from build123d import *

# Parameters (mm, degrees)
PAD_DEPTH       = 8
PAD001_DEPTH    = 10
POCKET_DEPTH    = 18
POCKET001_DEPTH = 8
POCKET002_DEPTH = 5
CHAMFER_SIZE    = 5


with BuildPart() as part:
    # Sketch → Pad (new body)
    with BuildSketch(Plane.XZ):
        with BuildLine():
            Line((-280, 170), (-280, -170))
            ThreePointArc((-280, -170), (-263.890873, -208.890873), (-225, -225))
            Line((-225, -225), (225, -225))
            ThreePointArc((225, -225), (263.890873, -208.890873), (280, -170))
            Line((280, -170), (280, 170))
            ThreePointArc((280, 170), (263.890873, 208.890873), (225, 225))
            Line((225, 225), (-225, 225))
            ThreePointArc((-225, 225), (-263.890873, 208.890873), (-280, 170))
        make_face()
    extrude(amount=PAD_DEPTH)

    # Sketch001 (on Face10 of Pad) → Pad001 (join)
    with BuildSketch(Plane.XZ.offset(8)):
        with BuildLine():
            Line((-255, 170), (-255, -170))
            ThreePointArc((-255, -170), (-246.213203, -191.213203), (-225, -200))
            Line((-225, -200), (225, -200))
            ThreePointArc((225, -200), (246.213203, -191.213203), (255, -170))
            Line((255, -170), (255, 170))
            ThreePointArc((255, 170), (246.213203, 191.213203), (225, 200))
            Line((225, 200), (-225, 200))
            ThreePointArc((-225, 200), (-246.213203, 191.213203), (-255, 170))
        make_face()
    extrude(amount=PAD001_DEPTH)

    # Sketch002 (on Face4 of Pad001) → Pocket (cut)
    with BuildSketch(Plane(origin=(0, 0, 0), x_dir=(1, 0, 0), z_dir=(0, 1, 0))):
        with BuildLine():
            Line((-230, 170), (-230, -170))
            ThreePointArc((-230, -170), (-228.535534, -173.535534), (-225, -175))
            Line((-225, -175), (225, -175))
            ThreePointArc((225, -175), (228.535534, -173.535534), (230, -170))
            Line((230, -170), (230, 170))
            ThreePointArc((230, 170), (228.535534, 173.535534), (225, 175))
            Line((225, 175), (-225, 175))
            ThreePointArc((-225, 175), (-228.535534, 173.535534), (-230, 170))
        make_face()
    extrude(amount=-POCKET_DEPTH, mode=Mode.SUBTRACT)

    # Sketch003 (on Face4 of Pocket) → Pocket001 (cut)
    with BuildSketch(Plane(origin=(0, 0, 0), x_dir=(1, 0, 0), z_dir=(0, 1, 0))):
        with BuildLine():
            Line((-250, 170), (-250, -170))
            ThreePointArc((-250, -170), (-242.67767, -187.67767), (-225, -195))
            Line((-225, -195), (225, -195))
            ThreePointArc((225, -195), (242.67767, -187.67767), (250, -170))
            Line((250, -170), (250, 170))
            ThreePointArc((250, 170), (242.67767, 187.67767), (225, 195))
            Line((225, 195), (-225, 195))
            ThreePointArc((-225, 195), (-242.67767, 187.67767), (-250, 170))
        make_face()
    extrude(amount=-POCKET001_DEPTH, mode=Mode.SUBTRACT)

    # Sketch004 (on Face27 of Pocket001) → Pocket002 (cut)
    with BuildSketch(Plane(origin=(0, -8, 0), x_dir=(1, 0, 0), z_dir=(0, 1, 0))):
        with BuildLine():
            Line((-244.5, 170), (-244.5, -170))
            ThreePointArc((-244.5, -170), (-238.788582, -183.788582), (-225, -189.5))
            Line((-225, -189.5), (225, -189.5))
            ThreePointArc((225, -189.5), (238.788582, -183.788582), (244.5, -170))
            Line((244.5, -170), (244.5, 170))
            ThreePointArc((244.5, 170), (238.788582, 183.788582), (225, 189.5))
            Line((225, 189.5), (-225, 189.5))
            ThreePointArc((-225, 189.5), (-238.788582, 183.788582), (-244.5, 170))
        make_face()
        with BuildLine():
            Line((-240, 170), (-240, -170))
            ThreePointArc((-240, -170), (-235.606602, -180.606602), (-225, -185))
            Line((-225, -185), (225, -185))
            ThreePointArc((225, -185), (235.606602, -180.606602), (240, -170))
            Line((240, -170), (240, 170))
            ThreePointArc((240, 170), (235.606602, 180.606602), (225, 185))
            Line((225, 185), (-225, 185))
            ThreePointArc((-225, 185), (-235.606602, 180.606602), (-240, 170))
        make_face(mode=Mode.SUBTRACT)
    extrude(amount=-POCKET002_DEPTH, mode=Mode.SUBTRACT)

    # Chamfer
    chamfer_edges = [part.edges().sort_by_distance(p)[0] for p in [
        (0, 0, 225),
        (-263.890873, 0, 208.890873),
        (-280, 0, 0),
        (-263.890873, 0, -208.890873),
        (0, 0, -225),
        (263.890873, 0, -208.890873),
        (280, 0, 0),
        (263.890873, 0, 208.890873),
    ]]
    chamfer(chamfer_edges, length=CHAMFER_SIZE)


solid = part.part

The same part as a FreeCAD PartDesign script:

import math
import FreeCAD as App
import Part
import Sketcher

V = App.Vector


def edges_at(feature, points):
    """Names of the edges that pass closest to the given points."""
    edges = feature.Shape.Edges
    near = lambda p: min(range(len(edges)), key=lambda i: edges[i].distToShape(Part.Vertex(*p))[0])
    return sorted({f"Edge{near(p) + 1}" for p in points})

doc = App.newDocument("Part")
params = doc.addObject("Spreadsheet::Sheet", "Params")
for row, (alias, value) in enumerate([
    ("sketch1_radius", "55 mm"),
    ("sketch1_width", "450 mm"),
    ("sketch1_height", "340 mm"),
    ("pad1_length", "8 mm"),
    ("sketch2_radius", "30.000001 mm"),
    ("sketch2_width", "450 mm"),
    ("sketch2_height", "340 mm"),
    ("pad2_length", "10 mm"),
    ("sketch3_radius", "5 mm"),
    ("sketch3_width", "450 mm"),
    ("sketch3_height", "340 mm"),
    ("pocket1_length", "18 mm"),
    ("sketch4_radius", "24.999998 mm"),
    ("sketch4_width", "450 mm"),
    ("sketch4_height", "340 mm"),
    ("pocket2_length", "8 mm"),
    ("sketch5_radius", "14.999999 mm"),
    ("sketch5_radius2", "19.500001 mm"),
    ("sketch5_width", "450 mm"),
    ("sketch5_height", "340 mm"),
    ("pocket3_length", "5 mm"),
    ("chamfer_size", "5 mm"),
], start=1):
    params.set(f"A{row}", alias)
    params.set(f"B{row}", "=" + value)
    params.setAlias(f"B{row}", alias)

body = doc.addObject("PartDesign::Body", "Body")

# Sketch on XZ plane
sketch1 = doc.addObject("Sketcher::SketchObject", "Sketch")
body.addObject(sketch1)
sketch1.AttachmentSupport = (doc.XZ_Plane, [""])
sketch1.MapMode = "FlatFace"
sketch1.addGeometry(Part.LineSegment(V(-280, 170, 0), V(-280, -170, 0)), False)
sketch1.addGeometry(Part.ArcOfCircle(Part.Circle(V(-225, -170, 0), V(0, 0, 1), 55), math.radians(180), math.radians(270)), False)
sketch1.addGeometry(Part.LineSegment(V(-225, -225, 0), V(225, -225, 0)), False)
sketch1.addGeometry(Part.ArcOfCircle(Part.Circle(V(225, -170, 0), V(0, 0, 1), 55), math.radians(-90), math.radians(0)), False)
sketch1.addGeometry(Part.LineSegment(V(280, -170, 0), V(280, 170, 0)), False)
sketch1.addGeometry(Part.ArcOfCircle(Part.Circle(V(225, 170, 0), V(0, 0, 1), 55), math.radians(0), math.radians(90)), False)
sketch1.addGeometry(Part.LineSegment(V(225, 225, 0), V(-225, 225, 0)), False)
sketch1.addGeometry(Part.ArcOfCircle(Part.Circle(V(-225, 170, 0), V(0, 0, 1), 55), math.radians(90), math.radians(180)), False)
sketch1.addConstraint(Sketcher.Constraint("Tangent", 0, 2, 1, 1))
sketch1.addConstraint(Sketcher.Constraint("Tangent", 1, 2, 2, 1))
sketch1.addConstraint(Sketcher.Constraint("Tangent", 2, 2, 3, 1))
sketch1.addConstraint(Sketcher.Constraint("Tangent", 3, 2, 4, 1))
sketch1.addConstraint(Sketcher.Constraint("Tangent", 4, 2, 5, 1))
sketch1.addConstraint(Sketcher.Constraint("Tangent", 5, 2, 6, 1))
sketch1.addConstraint(Sketcher.Constraint("Tangent", 6, 2, 7, 1))
sketch1.addConstraint(Sketcher.Constraint("Tangent", 7, 2, 0, 1))
sketch1.addConstraint(Sketcher.Constraint("Vertical", 0))
sketch1.addConstraint(Sketcher.Constraint("Horizontal", 2))
sketch1.addConstraint(Sketcher.Constraint("Vertical", 4))
sketch1.addConstraint(Sketcher.Constraint("Horizontal", 6))
sketch1.addConstraint(Sketcher.Constraint("Equal", 1, 3))
sketch1.addConstraint(Sketcher.Constraint("Equal", 3, 5))
sketch1.addConstraint(Sketcher.Constraint("Equal", 5, 7))
sketch1.addConstraint(Sketcher.Constraint("Symmetric", 1, 3, 5, 3, -1, 1))
sketch1.addConstraint(Sketcher.Constraint("Radius", 1, 55.0))
sketch1.addConstraint(Sketcher.Constraint("DistanceX", 2, 1, 2, 2, 450.0))
sketch1.addConstraint(Sketcher.Constraint("DistanceY", 0, 2, 0, 1, 340.0))
sketch1.setExpression("Constraints[16]", "Params.sketch1_radius")
sketch1.setExpression("Constraints[17]", "Params.sketch1_width")
sketch1.setExpression("Constraints[18]", "Params.sketch1_height")
pad1 = doc.addObject("PartDesign::Pad", "Pad")
body.addObject(pad1)
pad1.Profile = sketch1
pad1.setExpression("Length", "Params.pad1_length")

# Sketch on XZ plane
sketch2 = doc.addObject("Sketcher::SketchObject", "Sketch001")
body.addObject(sketch2)
sketch2.AttachmentSupport = (doc.XZ_Plane, [""])
sketch2.MapMode = "FlatFace"
sketch2.AttachmentOffset = App.Placement(V(0, 0, 8), App.Rotation())
sketch2.addGeometry(Part.LineSegment(V(-255, 170, 0), V(-255, -170, 0)), False)
sketch2.addGeometry(Part.ArcOfCircle(Part.Circle(V(-224.999999, -169.999999, 0), V(0, 0, 1), 30.000001), math.radians(-179.999997), math.radians(-90.000003)), False)
sketch2.addGeometry(Part.LineSegment(V(-225, -200, 0), V(225, -200, 0)), False)
sketch2.addGeometry(Part.ArcOfCircle(Part.Circle(V(224.999999, -169.999999, 0), V(0, 0, 1), 30.000001), math.radians(-89.999997), math.radians(-0.000003)), False)
sketch2.addGeometry(Part.LineSegment(V(255, -170, 0), V(255, 170, 0)), False)
sketch2.addGeometry(Part.ArcOfCircle(Part.Circle(V(224.999999, 169.999999, 0), V(0, 0, 1), 30.000001), math.radians(0.000003), math.radians(89.999997)), False)
sketch2.addGeometry(Part.LineSegment(V(225, 200, 0), V(-225, 200, 0)), False)
sketch2.addGeometry(Part.ArcOfCircle(Part.Circle(V(-224.999999, 169.999999, 0), V(0, 0, 1), 30.000001), math.radians(90.000003), math.radians(179.999997)), False)
sketch2.addConstraint(Sketcher.Constraint("Tangent", 0, 2, 1, 1))
sketch2.addConstraint(Sketcher.Constraint("Tangent", 1, 2, 2, 1))
sketch2.addConstraint(Sketcher.Constraint("Tangent", 2, 2, 3, 1))
sketch2.addConstraint(Sketcher.Constraint("Tangent", 3, 2, 4, 1))
sketch2.addConstraint(Sketcher.Constraint("Tangent", 4, 2, 5, 1))
sketch2.addConstraint(Sketcher.Constraint("Tangent", 5, 2, 6, 1))
sketch2.addConstraint(Sketcher.Constraint("Tangent", 6, 2, 7, 1))
sketch2.addConstraint(Sketcher.Constraint("Tangent", 7, 2, 0, 1))
sketch2.addConstraint(Sketcher.Constraint("Vertical", 0))
sketch2.addConstraint(Sketcher.Constraint("Horizontal", 2))
sketch2.addConstraint(Sketcher.Constraint("Vertical", 4))
sketch2.addConstraint(Sketcher.Constraint("Horizontal", 6))
sketch2.addConstraint(Sketcher.Constraint("Equal", 1, 3))
sketch2.addConstraint(Sketcher.Constraint("Equal", 3, 5))
sketch2.addConstraint(Sketcher.Constraint("Equal", 5, 7))
sketch2.addConstraint(Sketcher.Constraint("Symmetric", 1, 3, 5, 3, -1, 1))
sketch2.addConstraint(Sketcher.Constraint("Radius", 1, 30.000001))
sketch2.addConstraint(Sketcher.Constraint("DistanceX", 2, 1, 2, 2, 450.0))
sketch2.addConstraint(Sketcher.Constraint("DistanceY", 0, 2, 0, 1, 340.0))
sketch2.setExpression("Constraints[16]", "Params.sketch2_radius")
sketch2.setExpression("Constraints[17]", "Params.sketch2_width")
sketch2.setExpression("Constraints[18]", "Params.sketch2_height")
pad2 = doc.addObject("PartDesign::Pad", "Pad001")
body.addObject(pad2)
pad2.Profile = sketch2
pad2.setExpression("Length", "Params.pad2_length")

# Sketch on XZ plane
sketch3 = doc.addObject("Sketcher::SketchObject", "Sketch002")
body.addObject(sketch3)
sketch3.AttachmentSupport = (doc.XZ_Plane, [""])
sketch3.MapMode = "FlatFace"
sketch3.addGeometry(Part.LineSegment(V(-230, -170, 0), V(-230, 170, 0)), False)
sketch3.addGeometry(Part.ArcOfCircle(Part.Circle(V(-225, 170, 0), V(0, 0, 1), 5), math.radians(89.999996), math.radians(180.000004)), False)
sketch3.addGeometry(Part.LineSegment(V(-225, 175, 0), V(225, 175, 0)), False)
sketch3.addGeometry(Part.ArcOfCircle(Part.Circle(V(225, 170, 0), V(0, 0, 1), 5), math.radians(-0.000004), math.radians(90.000004)), False)
sketch3.addGeometry(Part.LineSegment(V(230, 170, 0), V(230, -170, 0)), False)
sketch3.addGeometry(Part.ArcOfCircle(Part.Circle(V(225, -170, 0), V(0, 0, 1), 5), math.radians(-90.000004), math.radians(0.000004)), False)
sketch3.addGeometry(Part.LineSegment(V(225, -175, 0), V(-225, -175, 0)), False)
sketch3.addGeometry(Part.ArcOfCircle(Part.Circle(V(-225, -170, 0), V(0, 0, 1), 5), math.radians(179.999996), math.radians(270.000004)), False)
sketch3.addConstraint(Sketcher.Constraint("Tangent", 0, 2, 1, 2))
sketch3.addConstraint(Sketcher.Constraint("Tangent", 1, 1, 2, 1))
sketch3.addConstraint(Sketcher.Constraint("Tangent", 2, 2, 3, 2))
sketch3.addConstraint(Sketcher.Constraint("Tangent", 3, 1, 4, 1))
sketch3.addConstraint(Sketcher.Constraint("Tangent", 4, 2, 5, 2))
sketch3.addConstraint(Sketcher.Constraint("Tangent", 5, 1, 6, 1))
sketch3.addConstraint(Sketcher.Constraint("Tangent", 6, 2, 7, 2))
sketch3.addConstraint(Sketcher.Constraint("Tangent", 7, 1, 0, 1))
sketch3.addConstraint(Sketcher.Constraint("Vertical", 0))
sketch3.addConstraint(Sketcher.Constraint("Horizontal", 2))
sketch3.addConstraint(Sketcher.Constraint("Vertical", 4))
sketch3.addConstraint(Sketcher.Constraint("Horizontal", 6))
sketch3.addConstraint(Sketcher.Constraint("Equal", 1, 3))
sketch3.addConstraint(Sketcher.Constraint("Equal", 3, 5))
sketch3.addConstraint(Sketcher.Constraint("Equal", 5, 7))
sketch3.addConstraint(Sketcher.Constraint("Symmetric", 1, 3, 5, 3, -1, 1))
sketch3.addConstraint(Sketcher.Constraint("Radius", 1, 5.0))
sketch3.addConstraint(Sketcher.Constraint("DistanceX", 2, 1, 2, 2, 450.0))
sketch3.addConstraint(Sketcher.Constraint("DistanceY", 0, 1, 0, 2, 340.0))
sketch3.setExpression("Constraints[16]", "Params.sketch3_radius")
sketch3.setExpression("Constraints[17]", "Params.sketch3_width")
sketch3.setExpression("Constraints[18]", "Params.sketch3_height")
pocket1 = doc.addObject("PartDesign::Pocket", "Pocket")
body.addObject(pocket1)
pocket1.Profile = sketch3
pocket1.setExpression("Length", "Params.pocket1_length")
pocket1.Reversed = True

# Sketch on XZ plane
sketch4 = doc.addObject("Sketcher::SketchObject", "Sketch003")
body.addObject(sketch4)
sketch4.AttachmentSupport = (doc.XZ_Plane, [""])
sketch4.MapMode = "FlatFace"
sketch4.addGeometry(Part.LineSegment(V(-250, -170, 0), V(-250, 170, 0)), False)
sketch4.addGeometry(Part.ArcOfCircle(Part.Circle(V(-225.000002, 170.000002, 0), V(0, 0, 1), 24.999998), math.radians(89.999996), math.radians(180.000004)), False)
sketch4.addGeometry(Part.LineSegment(V(-225, 195, 0), V(225, 195, 0)), False)
sketch4.addGeometry(Part.ArcOfCircle(Part.Circle(V(225.000002, 170.000002, 0), V(0, 0, 1), 24.999998), math.radians(-0.000004), math.radians(90.000004)), False)
sketch4.addGeometry(Part.LineSegment(V(250, 170, 0), V(250, -170, 0)), False)
sketch4.addGeometry(Part.ArcOfCircle(Part.Circle(V(225.000002, -170.000002, 0), V(0, 0, 1), 24.999998), math.radians(-90.000004), math.radians(0.000004)), False)
sketch4.addGeometry(Part.LineSegment(V(225, -195, 0), V(-225, -195, 0)), False)
sketch4.addGeometry(Part.ArcOfCircle(Part.Circle(V(-225.000002, -170.000002, 0), V(0, 0, 1), 24.999998), math.radians(179.999996), math.radians(270.000004)), False)
sketch4.addConstraint(Sketcher.Constraint("Tangent", 0, 2, 1, 2))
sketch4.addConstraint(Sketcher.Constraint("Tangent", 1, 1, 2, 1))
sketch4.addConstraint(Sketcher.Constraint("Tangent", 2, 2, 3, 2))
sketch4.addConstraint(Sketcher.Constraint("Tangent", 3, 1, 4, 1))
sketch4.addConstraint(Sketcher.Constraint("Tangent", 4, 2, 5, 2))
sketch4.addConstraint(Sketcher.Constraint("Tangent", 5, 1, 6, 1))
sketch4.addConstraint(Sketcher.Constraint("Tangent", 6, 2, 7, 2))
sketch4.addConstraint(Sketcher.Constraint("Tangent", 7, 1, 0, 1))
sketch4.addConstraint(Sketcher.Constraint("Vertical", 0))
sketch4.addConstraint(Sketcher.Constraint("Horizontal", 2))
sketch4.addConstraint(Sketcher.Constraint("Vertical", 4))
sketch4.addConstraint(Sketcher.Constraint("Horizontal", 6))
sketch4.addConstraint(Sketcher.Constraint("Equal", 1, 3))
sketch4.addConstraint(Sketcher.Constraint("Equal", 3, 5))
sketch4.addConstraint(Sketcher.Constraint("Equal", 5, 7))
sketch4.addConstraint(Sketcher.Constraint("Symmetric", 1, 3, 5, 3, -1, 1))
sketch4.addConstraint(Sketcher.Constraint("Radius", 1, 24.999998))
sketch4.addConstraint(Sketcher.Constraint("DistanceX", 2, 1, 2, 2, 450.0))
sketch4.addConstraint(Sketcher.Constraint("DistanceY", 0, 1, 0, 2, 340.0))
sketch4.setExpression("Constraints[16]", "Params.sketch4_radius")
sketch4.setExpression("Constraints[17]", "Params.sketch4_width")
sketch4.setExpression("Constraints[18]", "Params.sketch4_height")
pocket2 = doc.addObject("PartDesign::Pocket", "Pocket001")
body.addObject(pocket2)
pocket2.Profile = sketch4
pocket2.setExpression("Length", "Params.pocket2_length")
pocket2.Reversed = True

# Sketch on XZ plane
sketch5 = doc.addObject("Sketcher::SketchObject", "Sketch004")
body.addObject(sketch5)
sketch5.AttachmentSupport = (doc.XZ_Plane, [""])
sketch5.MapMode = "FlatFace"
sketch5.AttachmentOffset = App.Placement(V(0, 0, 8), App.Rotation())
sketch5.addGeometry(Part.LineSegment(V(-244.5, -170, 0), V(-244.5, 170, 0)), False)
sketch5.addGeometry(Part.ArcOfCircle(Part.Circle(V(-224.999999, 169.999999, 0), V(0, 0, 1), 19.500001), math.radians(90.000002), math.radians(179.999998)), False)
sketch5.addGeometry(Part.LineSegment(V(-225, 189.5, 0), V(225, 189.5, 0)), False)
sketch5.addGeometry(Part.ArcOfCircle(Part.Circle(V(224.999999, 169.999999, 0), V(0, 0, 1), 19.500001), math.radians(0.000002), math.radians(89.999998)), False)
sketch5.addGeometry(Part.LineSegment(V(244.5, 170, 0), V(244.5, -170, 0)), False)
sketch5.addGeometry(Part.ArcOfCircle(Part.Circle(V(224.999999, -169.999999, 0), V(0, 0, 1), 19.500001), math.radians(-89.999998), math.radians(-0.000002)), False)
sketch5.addGeometry(Part.LineSegment(V(225, -189.5, 0), V(-225, -189.5, 0)), False)
sketch5.addGeometry(Part.ArcOfCircle(Part.Circle(V(-224.999999, -169.999999, 0), V(0, 0, 1), 19.500001), math.radians(-179.999998), math.radians(-90.000002)), False)
sketch5.addGeometry(Part.LineSegment(V(-240, 170, 0), V(-240, -170, 0)), False)
sketch5.addGeometry(Part.ArcOfCircle(Part.Circle(V(-225.000001, -170.000001, 0), V(0, 0, 1), 14.999999), math.radians(179.999996), math.radians(270.000004)), False)
sketch5.addGeometry(Part.LineSegment(V(-225, -185, 0), V(225, -185, 0)), False)
sketch5.addGeometry(Part.ArcOfCircle(Part.Circle(V(225.000001, -170.000001, 0), V(0, 0, 1), 14.999999), math.radians(-90.000004), math.radians(0.000004)), False)
sketch5.addGeometry(Part.LineSegment(V(240, -170, 0), V(240, 170, 0)), False)
sketch5.addGeometry(Part.ArcOfCircle(Part.Circle(V(225.000001, 170.000001, 0), V(0, 0, 1), 14.999999), math.radians(-0.000004), math.radians(90.000004)), False)
sketch5.addGeometry(Part.LineSegment(V(225, 185, 0), V(-225, 185, 0)), False)
sketch5.addGeometry(Part.ArcOfCircle(Part.Circle(V(-225.000001, 170.000001, 0), V(0, 0, 1), 14.999999), math.radians(89.999996), math.radians(180.000004)), False)
sketch5.addConstraint(Sketcher.Constraint("Tangent", 0, 2, 1, 2))
sketch5.addConstraint(Sketcher.Constraint("Tangent", 1, 1, 2, 1))
sketch5.addConstraint(Sketcher.Constraint("Tangent", 2, 2, 3, 2))
sketch5.addConstraint(Sketcher.Constraint("Tangent", 3, 1, 4, 1))
sketch5.addConstraint(Sketcher.Constraint("Tangent", 4, 2, 5, 2))
sketch5.addConstraint(Sketcher.Constraint("Tangent", 5, 1, 6, 1))
sketch5.addConstraint(Sketcher.Constraint("Tangent", 6, 2, 7, 2))
sketch5.addConstraint(Sketcher.Constraint("Tangent", 7, 1, 0, 1))
sketch5.addConstraint(Sketcher.Constraint("Tangent", 8, 2, 9, 1))
sketch5.addConstraint(Sketcher.Constraint("Tangent", 9, 2, 10, 1))
sketch5.addConstraint(Sketcher.Constraint("Tangent", 10, 2, 11, 1))
sketch5.addConstraint(Sketcher.Constraint("Tangent", 11, 2, 12, 1))
sketch5.addConstraint(Sketcher.Constraint("Tangent", 12, 2, 13, 1))
sketch5.addConstraint(Sketcher.Constraint("Tangent", 13, 2, 14, 1))
sketch5.addConstraint(Sketcher.Constraint("Tangent", 14, 2, 15, 1))
sketch5.addConstraint(Sketcher.Constraint("Tangent", 15, 2, 8, 1))
sketch5.addConstraint(Sketcher.Constraint("Vertical", 0))
sketch5.addConstraint(Sketcher.Constraint("Horizontal", 2))
sketch5.addConstraint(Sketcher.Constraint("Vertical", 4))
sketch5.addConstraint(Sketcher.Constraint("Horizontal", 6))
sketch5.addConstraint(Sketcher.Constraint("Vertical", 8))
sketch5.addConstraint(Sketcher.Constraint("Horizontal", 10))
sketch5.addConstraint(Sketcher.Constraint("Vertical", 12))
sketch5.addConstraint(Sketcher.Constraint("Horizontal", 14))
sketch5.addConstraint(Sketcher.Constraint("Coincident", 9, 3, 7, 3))
sketch5.addConstraint(Sketcher.Constraint("Coincident", 11, 3, 5, 3))
sketch5.addConstraint(Sketcher.Constraint("Coincident", 13, 3, 3, 3))
sketch5.addConstraint(Sketcher.Constraint("Equal", 1, 3))
sketch5.addConstraint(Sketcher.Constraint("Equal", 3, 5))
sketch5.addConstraint(Sketcher.Constraint("Equal", 5, 7))
sketch5.addConstraint(Sketcher.Constraint("Equal", 13, 15))
sketch5.addConstraint(Sketcher.Constraint("Symmetric", 1, 3, 5, 3, -1, 1))
sketch5.addConstraint(Sketcher.Constraint("Radius", 9, 14.999999))
sketch5.addConstraint(Sketcher.Constraint("Radius", 1, 19.500001))
sketch5.addConstraint(Sketcher.Constraint("DistanceX", 2, 1, 2, 2, 450.0))
sketch5.addConstraint(Sketcher.Constraint("DistanceY", 0, 1, 0, 2, 340.0))
sketch5.setExpression("Constraints[32]", "Params.sketch5_radius")
sketch5.setExpression("Constraints[33]", "Params.sketch5_radius2")
sketch5.setExpression("Constraints[34]", "Params.sketch5_width")
sketch5.setExpression("Constraints[35]", "Params.sketch5_height")
pocket3 = doc.addObject("PartDesign::Pocket", "Pocket002")
body.addObject(pocket3)
pocket3.Profile = sketch5
pocket3.setExpression("Length", "Params.pocket3_length")
pocket3.Reversed = True
doc.recompute()

chamfer = doc.addObject("PartDesign::Chamfer", "Chamfer")
body.addObject(chamfer)
chamfer.Base = (pocket3, edges_at(pocket3, [
    (0, 0, 225),
    (-263.891, 0, 208.891),
    (-280, 0, 0),
    (-263.891, 0, -208.891),
    (0, 0, -225),
    (263.891, 0, -208.891),
    (280, 0, 0),
    (263.891, 0, 208.891),
]))
chamfer.setExpression("Size", "Params.chamfer_size")

doc.recompute()
